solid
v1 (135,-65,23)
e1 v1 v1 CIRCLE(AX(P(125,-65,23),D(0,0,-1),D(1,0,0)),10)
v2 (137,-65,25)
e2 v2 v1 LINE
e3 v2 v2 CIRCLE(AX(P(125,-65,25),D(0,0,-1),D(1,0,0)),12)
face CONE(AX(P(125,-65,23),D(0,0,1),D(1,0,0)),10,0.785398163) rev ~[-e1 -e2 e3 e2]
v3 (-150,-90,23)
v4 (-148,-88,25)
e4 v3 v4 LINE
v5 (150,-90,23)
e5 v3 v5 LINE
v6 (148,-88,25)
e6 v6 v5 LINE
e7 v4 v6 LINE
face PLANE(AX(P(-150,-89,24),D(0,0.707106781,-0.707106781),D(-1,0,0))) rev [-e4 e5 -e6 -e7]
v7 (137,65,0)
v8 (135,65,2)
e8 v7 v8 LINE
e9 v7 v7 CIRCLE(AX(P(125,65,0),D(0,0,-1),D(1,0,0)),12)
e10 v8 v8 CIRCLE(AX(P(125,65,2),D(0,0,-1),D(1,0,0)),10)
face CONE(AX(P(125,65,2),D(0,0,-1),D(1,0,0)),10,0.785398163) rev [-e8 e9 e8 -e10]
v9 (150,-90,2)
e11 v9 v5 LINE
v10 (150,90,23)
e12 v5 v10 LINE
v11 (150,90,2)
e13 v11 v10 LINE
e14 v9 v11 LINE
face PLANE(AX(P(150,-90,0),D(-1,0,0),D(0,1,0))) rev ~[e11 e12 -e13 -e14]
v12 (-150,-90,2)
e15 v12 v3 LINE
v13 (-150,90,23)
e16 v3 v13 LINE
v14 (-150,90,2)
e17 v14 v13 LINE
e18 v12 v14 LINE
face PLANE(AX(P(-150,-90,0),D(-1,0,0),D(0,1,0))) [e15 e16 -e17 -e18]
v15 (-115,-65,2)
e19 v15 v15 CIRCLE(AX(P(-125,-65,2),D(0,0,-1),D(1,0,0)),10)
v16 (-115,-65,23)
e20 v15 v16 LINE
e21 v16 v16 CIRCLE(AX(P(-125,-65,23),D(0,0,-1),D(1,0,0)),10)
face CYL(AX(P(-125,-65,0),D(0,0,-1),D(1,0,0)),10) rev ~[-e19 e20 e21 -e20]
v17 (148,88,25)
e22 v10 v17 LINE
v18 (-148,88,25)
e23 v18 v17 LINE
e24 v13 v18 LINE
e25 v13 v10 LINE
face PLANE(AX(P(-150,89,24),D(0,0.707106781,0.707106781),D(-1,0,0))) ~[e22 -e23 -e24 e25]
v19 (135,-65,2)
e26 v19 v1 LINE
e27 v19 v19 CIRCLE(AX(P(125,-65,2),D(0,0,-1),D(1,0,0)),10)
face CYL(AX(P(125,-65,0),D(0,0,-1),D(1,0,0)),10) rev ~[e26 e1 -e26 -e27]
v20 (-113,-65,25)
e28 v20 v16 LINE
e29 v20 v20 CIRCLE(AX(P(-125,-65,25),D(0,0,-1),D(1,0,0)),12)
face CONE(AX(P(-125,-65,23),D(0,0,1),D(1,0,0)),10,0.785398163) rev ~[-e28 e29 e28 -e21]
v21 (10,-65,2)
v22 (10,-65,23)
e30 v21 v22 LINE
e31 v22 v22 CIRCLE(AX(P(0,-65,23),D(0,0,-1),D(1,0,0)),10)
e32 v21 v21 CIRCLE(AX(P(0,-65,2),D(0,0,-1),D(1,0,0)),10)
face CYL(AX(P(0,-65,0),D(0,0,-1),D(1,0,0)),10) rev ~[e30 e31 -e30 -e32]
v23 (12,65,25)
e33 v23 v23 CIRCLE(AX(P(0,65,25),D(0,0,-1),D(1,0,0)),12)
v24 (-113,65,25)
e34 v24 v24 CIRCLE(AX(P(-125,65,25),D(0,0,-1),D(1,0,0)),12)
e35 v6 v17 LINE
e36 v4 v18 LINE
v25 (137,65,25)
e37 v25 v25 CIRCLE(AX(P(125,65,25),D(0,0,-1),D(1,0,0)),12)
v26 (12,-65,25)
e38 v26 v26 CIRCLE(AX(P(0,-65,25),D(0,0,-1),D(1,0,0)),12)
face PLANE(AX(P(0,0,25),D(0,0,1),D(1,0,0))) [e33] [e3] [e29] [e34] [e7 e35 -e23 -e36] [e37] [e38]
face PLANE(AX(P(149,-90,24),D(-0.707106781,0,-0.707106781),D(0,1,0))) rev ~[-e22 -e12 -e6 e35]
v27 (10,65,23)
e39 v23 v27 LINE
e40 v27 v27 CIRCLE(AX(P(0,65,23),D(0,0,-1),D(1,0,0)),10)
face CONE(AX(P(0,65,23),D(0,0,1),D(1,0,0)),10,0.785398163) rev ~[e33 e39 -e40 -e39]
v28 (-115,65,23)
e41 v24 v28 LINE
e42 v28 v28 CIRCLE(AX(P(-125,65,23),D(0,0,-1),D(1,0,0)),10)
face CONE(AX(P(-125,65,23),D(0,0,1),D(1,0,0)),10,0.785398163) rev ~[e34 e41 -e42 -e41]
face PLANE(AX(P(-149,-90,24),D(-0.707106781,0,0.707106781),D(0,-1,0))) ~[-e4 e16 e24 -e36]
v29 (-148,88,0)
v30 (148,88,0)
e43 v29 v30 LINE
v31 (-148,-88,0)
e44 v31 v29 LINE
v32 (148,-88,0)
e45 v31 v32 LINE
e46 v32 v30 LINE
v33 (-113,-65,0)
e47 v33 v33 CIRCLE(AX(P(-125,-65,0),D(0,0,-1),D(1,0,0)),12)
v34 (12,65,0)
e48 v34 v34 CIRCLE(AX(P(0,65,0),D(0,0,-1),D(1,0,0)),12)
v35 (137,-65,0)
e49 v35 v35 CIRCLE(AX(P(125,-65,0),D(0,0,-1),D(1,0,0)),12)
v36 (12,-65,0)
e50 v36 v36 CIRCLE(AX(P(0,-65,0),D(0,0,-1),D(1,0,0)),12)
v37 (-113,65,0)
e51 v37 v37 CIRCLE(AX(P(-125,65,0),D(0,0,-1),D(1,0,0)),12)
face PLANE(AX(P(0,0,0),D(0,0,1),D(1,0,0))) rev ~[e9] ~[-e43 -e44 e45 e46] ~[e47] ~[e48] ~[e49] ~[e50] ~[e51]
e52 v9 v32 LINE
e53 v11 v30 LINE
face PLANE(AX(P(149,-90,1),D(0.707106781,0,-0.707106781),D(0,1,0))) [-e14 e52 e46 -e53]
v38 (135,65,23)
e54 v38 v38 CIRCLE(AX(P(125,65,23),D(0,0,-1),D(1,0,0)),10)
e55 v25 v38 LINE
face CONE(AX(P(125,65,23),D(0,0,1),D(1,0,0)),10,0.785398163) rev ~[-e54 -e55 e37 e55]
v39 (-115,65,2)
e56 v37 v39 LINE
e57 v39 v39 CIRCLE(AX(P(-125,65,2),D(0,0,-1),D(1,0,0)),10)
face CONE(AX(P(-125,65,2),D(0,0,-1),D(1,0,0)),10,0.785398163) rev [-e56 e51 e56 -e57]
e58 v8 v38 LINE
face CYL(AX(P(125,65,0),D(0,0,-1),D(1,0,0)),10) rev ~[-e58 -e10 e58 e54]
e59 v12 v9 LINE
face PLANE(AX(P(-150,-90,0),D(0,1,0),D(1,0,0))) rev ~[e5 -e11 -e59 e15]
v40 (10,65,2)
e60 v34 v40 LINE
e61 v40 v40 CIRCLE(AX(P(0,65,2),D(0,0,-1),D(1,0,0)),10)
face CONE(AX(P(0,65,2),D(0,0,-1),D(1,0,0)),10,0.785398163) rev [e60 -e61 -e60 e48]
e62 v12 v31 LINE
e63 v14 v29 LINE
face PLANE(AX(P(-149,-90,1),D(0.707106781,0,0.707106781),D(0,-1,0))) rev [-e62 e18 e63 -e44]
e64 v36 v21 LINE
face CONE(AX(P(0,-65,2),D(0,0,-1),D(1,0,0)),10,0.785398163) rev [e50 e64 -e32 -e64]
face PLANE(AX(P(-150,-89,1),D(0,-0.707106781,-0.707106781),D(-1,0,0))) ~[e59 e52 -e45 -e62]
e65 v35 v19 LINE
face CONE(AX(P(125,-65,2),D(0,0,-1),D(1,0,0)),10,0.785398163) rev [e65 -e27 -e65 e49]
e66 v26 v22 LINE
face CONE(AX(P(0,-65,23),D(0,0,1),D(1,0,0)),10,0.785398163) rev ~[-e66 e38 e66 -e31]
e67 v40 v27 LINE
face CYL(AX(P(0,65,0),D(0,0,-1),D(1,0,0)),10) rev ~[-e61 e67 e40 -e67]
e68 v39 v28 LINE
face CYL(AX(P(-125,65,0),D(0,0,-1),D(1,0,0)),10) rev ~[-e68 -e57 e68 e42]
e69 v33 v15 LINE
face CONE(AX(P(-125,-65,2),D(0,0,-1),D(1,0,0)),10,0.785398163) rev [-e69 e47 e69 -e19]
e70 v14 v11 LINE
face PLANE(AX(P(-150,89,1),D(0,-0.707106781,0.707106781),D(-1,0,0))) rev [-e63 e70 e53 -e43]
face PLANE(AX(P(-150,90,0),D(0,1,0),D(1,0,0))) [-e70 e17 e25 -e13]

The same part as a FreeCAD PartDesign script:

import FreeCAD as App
import Part
import Sketcher


def edges_at(feature, points):
    """Names of the edges that pass closest to the given points."""
    edges = feature.Shape.Edges
    near = lambda p: min(range(len(edges)), key=lambda i: edges[i].distToShape(Part.Vertex(*p))[0])
    return sorted({f"Edge{near(p) + 1}" for p in points})

doc = App.newDocument("Part")
body = doc.addObject("PartDesign::Body", "Body")

# Sketch on XY plane
sketch1 = body.newObject("Sketcher::SketchObject", "Sketch")
sketch1.AttachmentSupport = (doc.getObject("XY_Plane"), [""])
sketch1.MapMode = "FlatFace"
sketch1.addGeometry(Part.LineSegment(App.Vector(-150, 90, 0), App.Vector(-150, -90, 0)), False)
sketch1.addGeometry(Part.LineSegment(App.Vector(-150, -90, 0), App.Vector(150, -90, 0)), False)
sketch1.addGeometry(Part.LineSegment(App.Vector(150, -90, 0), App.Vector(150, 90, 0)), False)
sketch1.addGeometry(Part.LineSegment(App.Vector(150, 90, 0), App.Vector(-150, 90, 0)), False)
sketch1.addConstraint(Sketcher.Constraint("Coincident", 0, 2, 1, 1))
sketch1.addConstraint(Sketcher.Constraint("Coincident", 1, 2, 2, 1))
sketch1.addConstraint(Sketcher.Constraint("Coincident", 2, 2, 3, 1))
sketch1.addConstraint(Sketcher.Constraint("Coincident", 3, 2, 0, 1))
sketch1.addConstraint(Sketcher.Constraint("Vertical", 0))
sketch1.addConstraint(Sketcher.Constraint("Horizontal", 1))
sketch1.addConstraint(Sketcher.Constraint("Vertical", 2))
sketch1.addConstraint(Sketcher.Constraint("Horizontal", 3))
sketch1.addConstraint(Sketcher.Constraint("Symmetric", 0, 2, 2, 2, -1, 1))
sketch1.addConstraint(Sketcher.Constraint("DistanceX", 1, 1, 1, 2, 300.0))
sketch1.addConstraint(Sketcher.Constraint("DistanceY", 0, 2, 0, 1, 180.0))
pad1 = body.newObject("PartDesign::Pad", "Pad")
pad1.Profile = sketch1
pad1.Length = 25

# Sketch on XY plane
sketch2 = body.newObject("Sketcher::SketchObject", "Sketch001")
sketch2.AttachmentSupport = (doc.getObject("XY_Plane"), [""])
sketch2.MapMode = "FlatFace"
sketch2.addGeometry(Part.Circle(App.Vector(-125, -65, 0), App.Vector(0, 0, 1), 10), False)
sketch2.addGeometry(Part.Circle(App.Vector(0, -65, 0), App.Vector(0, 0, 1), 10), False)
sketch2.addGeometry(Part.Circle(App.Vector(125, -65, 0), App.Vector(0, 0, 1), 10), False)
sketch2.addGeometry(Part.Circle(App.Vector(125, 65, 0), App.Vector(0, 0, 1), 10), False)
sketch2.addGeometry(Part.Circle(App.Vector(0, 65, 0), App.Vector(0, 0, 1), 10), False)
sketch2.addGeometry(Part.Circle(App.Vector(-125, 65, 0), App.Vector(0, 0, 1), 10), False)
sketch2.addConstraint(Sketcher.Constraint("Equal", 0, 1))
sketch2.addConstraint(Sketcher.Constraint("Equal", 1, 2))
sketch2.addConstraint(Sketcher.Constraint("Equal", 2, 3))
sketch2.addConstraint(Sketcher.Constraint("Equal", 3, 4))
sketch2.addConstraint(Sketcher.Constraint("Equal", 4, 5))
sketch2.addConstraint(Sketcher.Constraint("Symmetric", 0, 3, 3, 3, -1, 1))
sketch2.addConstraint(Sketcher.Constraint("Symmetric", 1, 3, 4, 3, -1, 1))
sketch2.addConstraint(Sketcher.Constraint("Symmetric", 2, 3, 5, 3, -1, 1))
sketch2.addConstraint(Sketcher.Constraint("Symmetric", 0, 3, 2, 3, -2))
sketch2.addConstraint(Sketcher.Constraint("PointOnObject", 1, 3, -2))
sketch2.addConstraint(Sketcher.Constraint("Horizontal", 0, 3, 1, 3))
sketch2.addConstraint(Sketcher.Constraint("Diameter", 0, 20.0))
sketch2.addConstraint(Sketcher.Constraint("DistanceX", 0, 3, -1, 1, 125.0))
sketch2.addConstraint(Sketcher.Constraint("DistanceY", 0, 3, -1, 1, 65.0))
pocket1 = body.newObject("PartDesign::Pocket", "Pocket")
pocket1.Profile = sketch2
pocket1.Type = "ThroughAll"
pocket1.Reversed = True
doc.recompute()

chamfer = body.newObject("PartDesign::Chamfer", "Chamfer")
chamfer.Base = (pocket1, edges_at(pocket1, [
    (-135, -65, 0),
    (-10, -65, 0),
    (115, -65, 0),
    (115, 65, 0),
    (-10, 65, 0),
    (-135, 65, 0),
    (-150, 0, 0),
    (0, 90, 0),
    (-150, 0, 25),
    (0, 90, 25),
    (0, -90, 0),
    (150, 0, 0),
    (150, 0, 25),
    (0, -90, 25),
    (-10, 65, 25),
    (-135, 65, 25),
    (-135, -65, 25),
    (-10, -65, 25),
    (115, 65, 25),
    (115, -65, 25),
]))
chamfer.ChamferType = "Two distances"
chamfer.Size = 2
chamfer.Size2 = 2

doc.recompute()
